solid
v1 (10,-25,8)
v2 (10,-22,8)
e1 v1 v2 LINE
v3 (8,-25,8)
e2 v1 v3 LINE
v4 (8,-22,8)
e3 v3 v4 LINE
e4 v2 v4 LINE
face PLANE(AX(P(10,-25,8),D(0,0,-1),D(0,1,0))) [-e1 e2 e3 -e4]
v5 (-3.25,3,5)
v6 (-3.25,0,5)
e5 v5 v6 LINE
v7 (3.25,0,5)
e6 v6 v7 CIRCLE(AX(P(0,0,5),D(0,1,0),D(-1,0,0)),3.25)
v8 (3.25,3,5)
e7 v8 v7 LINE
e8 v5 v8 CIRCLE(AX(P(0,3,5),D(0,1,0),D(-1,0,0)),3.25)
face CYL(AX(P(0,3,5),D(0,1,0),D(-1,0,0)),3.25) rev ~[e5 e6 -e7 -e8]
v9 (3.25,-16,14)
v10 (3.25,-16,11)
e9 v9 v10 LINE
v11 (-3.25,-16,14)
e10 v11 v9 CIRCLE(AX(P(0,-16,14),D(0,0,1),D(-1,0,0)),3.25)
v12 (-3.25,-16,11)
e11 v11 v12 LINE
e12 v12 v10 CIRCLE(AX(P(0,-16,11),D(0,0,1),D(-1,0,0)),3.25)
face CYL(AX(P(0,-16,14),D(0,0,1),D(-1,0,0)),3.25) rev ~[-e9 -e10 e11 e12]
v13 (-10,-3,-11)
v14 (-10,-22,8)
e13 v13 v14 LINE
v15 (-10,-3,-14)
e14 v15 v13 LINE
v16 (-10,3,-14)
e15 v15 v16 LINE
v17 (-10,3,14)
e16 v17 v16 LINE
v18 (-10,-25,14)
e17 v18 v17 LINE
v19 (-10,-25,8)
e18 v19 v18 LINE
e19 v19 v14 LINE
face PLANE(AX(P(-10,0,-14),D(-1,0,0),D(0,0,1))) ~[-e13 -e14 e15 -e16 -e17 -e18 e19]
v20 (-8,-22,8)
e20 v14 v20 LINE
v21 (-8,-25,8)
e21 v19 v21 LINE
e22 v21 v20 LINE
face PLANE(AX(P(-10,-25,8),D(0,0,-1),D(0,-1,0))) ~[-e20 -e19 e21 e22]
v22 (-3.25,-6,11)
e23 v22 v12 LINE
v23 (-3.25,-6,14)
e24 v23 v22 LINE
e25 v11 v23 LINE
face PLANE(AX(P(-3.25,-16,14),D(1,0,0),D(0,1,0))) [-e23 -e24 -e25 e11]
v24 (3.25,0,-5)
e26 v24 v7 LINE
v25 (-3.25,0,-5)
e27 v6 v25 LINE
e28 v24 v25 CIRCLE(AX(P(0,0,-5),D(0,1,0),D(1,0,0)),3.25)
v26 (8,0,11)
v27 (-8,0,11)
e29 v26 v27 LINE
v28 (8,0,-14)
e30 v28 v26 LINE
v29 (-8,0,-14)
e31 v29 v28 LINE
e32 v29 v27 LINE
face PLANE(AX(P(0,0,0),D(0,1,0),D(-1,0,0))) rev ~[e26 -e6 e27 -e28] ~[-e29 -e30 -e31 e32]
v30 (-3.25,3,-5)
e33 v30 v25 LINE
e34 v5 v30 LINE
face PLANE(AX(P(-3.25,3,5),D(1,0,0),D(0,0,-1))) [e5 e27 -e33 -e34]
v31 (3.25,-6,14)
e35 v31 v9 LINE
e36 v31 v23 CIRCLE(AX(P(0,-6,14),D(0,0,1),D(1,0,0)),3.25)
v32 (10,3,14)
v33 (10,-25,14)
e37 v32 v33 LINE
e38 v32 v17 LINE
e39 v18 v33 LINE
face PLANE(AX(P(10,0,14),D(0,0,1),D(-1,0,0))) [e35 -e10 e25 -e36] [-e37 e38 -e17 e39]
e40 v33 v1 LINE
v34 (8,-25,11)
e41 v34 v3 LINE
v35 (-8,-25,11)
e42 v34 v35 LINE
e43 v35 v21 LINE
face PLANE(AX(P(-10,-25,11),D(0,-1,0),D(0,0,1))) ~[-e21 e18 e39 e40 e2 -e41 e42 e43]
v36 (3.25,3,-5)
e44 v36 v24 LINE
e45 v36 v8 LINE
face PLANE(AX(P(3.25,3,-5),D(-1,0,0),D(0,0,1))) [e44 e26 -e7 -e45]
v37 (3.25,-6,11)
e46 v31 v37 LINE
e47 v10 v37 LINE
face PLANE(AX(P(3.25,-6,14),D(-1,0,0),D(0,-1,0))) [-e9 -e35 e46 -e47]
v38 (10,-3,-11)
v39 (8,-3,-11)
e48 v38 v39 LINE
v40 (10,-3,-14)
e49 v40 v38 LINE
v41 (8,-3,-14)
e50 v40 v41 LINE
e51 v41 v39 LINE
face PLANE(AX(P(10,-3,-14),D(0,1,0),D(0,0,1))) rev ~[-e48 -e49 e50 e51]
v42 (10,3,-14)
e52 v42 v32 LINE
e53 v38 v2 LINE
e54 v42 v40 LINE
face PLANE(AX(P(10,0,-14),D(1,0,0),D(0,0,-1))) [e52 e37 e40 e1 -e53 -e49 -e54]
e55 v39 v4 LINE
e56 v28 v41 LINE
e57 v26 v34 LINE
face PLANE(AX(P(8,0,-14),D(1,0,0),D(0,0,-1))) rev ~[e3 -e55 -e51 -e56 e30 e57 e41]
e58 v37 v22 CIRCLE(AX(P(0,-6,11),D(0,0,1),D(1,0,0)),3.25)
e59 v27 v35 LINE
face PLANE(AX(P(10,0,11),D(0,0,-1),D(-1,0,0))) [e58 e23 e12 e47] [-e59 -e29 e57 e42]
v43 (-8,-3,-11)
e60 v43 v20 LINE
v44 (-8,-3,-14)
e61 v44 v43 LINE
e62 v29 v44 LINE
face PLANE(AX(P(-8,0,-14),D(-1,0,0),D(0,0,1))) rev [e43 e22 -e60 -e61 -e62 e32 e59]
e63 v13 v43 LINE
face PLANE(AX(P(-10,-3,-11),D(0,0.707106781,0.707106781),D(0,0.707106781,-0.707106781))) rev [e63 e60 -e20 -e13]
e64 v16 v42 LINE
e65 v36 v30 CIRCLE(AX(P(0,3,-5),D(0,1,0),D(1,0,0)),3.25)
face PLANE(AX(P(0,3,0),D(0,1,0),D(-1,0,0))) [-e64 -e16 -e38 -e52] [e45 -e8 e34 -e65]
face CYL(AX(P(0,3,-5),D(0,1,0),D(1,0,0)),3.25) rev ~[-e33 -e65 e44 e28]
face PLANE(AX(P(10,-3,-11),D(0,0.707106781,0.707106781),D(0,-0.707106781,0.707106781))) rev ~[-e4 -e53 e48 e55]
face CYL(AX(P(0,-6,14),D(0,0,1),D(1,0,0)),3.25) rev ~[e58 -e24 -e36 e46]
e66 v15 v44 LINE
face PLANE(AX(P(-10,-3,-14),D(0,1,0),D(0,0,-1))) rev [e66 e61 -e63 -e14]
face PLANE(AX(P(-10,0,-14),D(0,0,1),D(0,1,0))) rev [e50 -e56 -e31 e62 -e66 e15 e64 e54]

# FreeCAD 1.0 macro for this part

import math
import FreeCAD as App
import Part
import Sketcher


def add_polygon(sketch, points):
    """Adds a closed chain of lines whose ends are joined by coincident constraints."""
    first, n = sketch.GeometryCount, len(points)
    for a, b in zip(points, points[1:] + points[:1]):
        sketch.addGeometry(Part.LineSegment(App.Vector(*a, 0), App.Vector(*b, 0)), False)
    for i in range(n):
        sketch.addConstraint(Sketcher.Constraint("Coincident", first + i, 2, first + (i + 1) % n, 1))

doc = App.newDocument("Part")
body = doc.addObject("PartDesign::Body", "Body")

# Sketch on XZ plane
sketch1 = body.newObject("Sketcher::SketchObject", "Sketch")
sketch1.AttachmentSupport = (doc.getObject("XZ_Plane"), [""])
sketch1.MapMode = "FlatFace"
add_polygon(sketch1, [(10, -14), (-10, -14), (-10, 14), (10, 14)])  # lines 0-3
sketch1.addConstraint([
    Sketcher.Constraint("Horizontal", 0),
    Sketcher.Constraint("Vertical", 1),
    Sketcher.Constraint("Horizontal", 2),
    Sketcher.Constraint("Vertical", 3),
    Sketcher.Constraint("Symmetric", 0, 2, 2, 2, -1, 1),
    Sketcher.Constraint("DistanceX", 0, 2, 0, 1, 20.0),
    Sketcher.Constraint("DistanceY", 1, 1, 1, 2, 28.0),
])
pad1 = body.newObject("PartDesign::Pad", "Pad")
pad1.Profile = sketch1
pad1.Length = 3
pad1.Reversed = True

# Sketch on XZ plane
sketch2 = body.newObject("Sketcher::SketchObject", "Sketch001")
sketch2.AttachmentSupport = (doc.getObject("XZ_Plane"), [""])
sketch2.MapMode = "FlatFace"
add_polygon(sketch2, [(10, 14), (-10, 14), (-10, 11), (10, 11)])  # lines 0-3
sketch2.addConstraint([
    Sketcher.Constraint("Horizontal", 0),
    Sketcher.Constraint("Vertical", 1),
    Sketcher.Constraint("Horizontal", 2),
    Sketcher.Constraint("Vertical", 3),
    Sketcher.Constraint("DistanceX", 0, 2, 0, 1, 20.0),
    Sketcher.Constraint("DistanceY", 1, 2, 1, 1, 3.0),
    Sketcher.Constraint("DistanceX", 0, 2, -1, 1, 10.0),
    Sketcher.Constraint("DistanceY", -1, 1, 0, 2, 14.0),
])
pad2 = body.newObject("PartDesign::Pad", "Pad001")
pad2.Profile = sketch2
pad2.Length = 25

# Sketch on YZ plane
sketch3 = body.newObject("Sketcher::SketchObject", "Sketch002")
sketch3.AttachmentSupport = (doc.getObject("YZ_Plane"), [""])
sketch3.MapMode = "FlatFace"
sketch3.AttachmentOffset = App.Placement(App.Vector(0, 0, 10), App.Rotation())
add_polygon(sketch3, [(0, -14), (0, 11), (-25, 11), (-25, 8), (-22, 8), (-3, -11), (-3, -14)])  # lines 0-6
sketch3.addConstraint([
    Sketcher.Constraint("Vertical", 0),
    Sketcher.Constraint("Horizontal", 1),
    Sketcher.Constraint("Vertical", 2),
    Sketcher.Constraint("Horizontal", 3),
    Sketcher.Constraint("Vertical", 5),
    Sketcher.Constraint("Horizontal", 6),
    Sketcher.Constraint("PointOnObject", 0, 2, -2),
    Sketcher.Constraint("Equal", 3, 6),
    Sketcher.Constraint("Equal", 1, 0),
    Sketcher.Constraint("Equal", 6, 2),
    Sketcher.Constraint("Equal", 2, 5),
    Sketcher.Constraint("DistanceX", 3, 1, 3, 2, 3.0),
    Sketcher.Constraint("DistanceX", 1, 2, 1, 1, 25.0),
    Sketcher.Constraint("DistanceY", -1, 1, 0, 2, 11.0),
])
pad3 = body.newObject("PartDesign::Pad", "Pad002")
pad3.Profile = sketch3
pad3.Length = 2
pad3.Reversed = True
doc.recompute()

mirrored = body.newObject("PartDesign::Mirrored", "Mirrored")
mirrored.Originals = [pad3]
mirrored.MirrorPlane = (doc.getObject("YZ_Plane"), [""])
body.Tip = mirrored

# Sketch on XY plane
sketch4 = body.newObject("Sketcher::SketchObject", "Sketch003")
sketch4.AttachmentSupport = (doc.getObject("XY_Plane"), [""])
sketch4.MapMode = "FlatFace"
sketch4.AttachmentOffset = App.Placement(App.Vector(0, 0, 14), App.Rotation())
sketch4.addGeometry([
    Part.ArcOfCircle(Part.Circle(App.Vector(0, -6, 0), App.Vector(0, 0, 1), 3.25), math.radians(0), math.radians(180)),
    Part.LineSegment(App.Vector(-3.25, -6, 0), App.Vector(-3.25, -16, 0)),
    Part.ArcOfCircle(Part.Circle(App.Vector(0, -16, 0), App.Vector(0, 0, 1), 3.25), math.radians(180), math.radians(360)),
    Part.LineSegment(App.Vector(3.25, -16, 0), App.Vector(3.25, -6, 0)),
], False)
sketch4.addConstraint([
    Sketcher.Constraint("Tangent", 0, 2, 1, 1),
    Sketcher.Constraint("Tangent", 1, 2, 2, 1),
    Sketcher.Constraint("Tangent", 2, 2, 3, 1),
    Sketcher.Constraint("Tangent", 3, 2, 0, 1),
    Sketcher.Constraint("Vertical", 1),
    Sketcher.Constraint("Vertical", 3),
    Sketcher.Constraint("PointOnObject", 0, 3, -2),
    Sketcher.Constraint("DistanceY", 1, 2, 1, 1, 10.0),
    Sketcher.Constraint("Radius", 0, 3.25),
    Sketcher.Constraint("DistanceY", 0, 3, -1, 1, 6.0),
])
pocket1 = body.newObject("PartDesign::Pocket", "Pocket")
pocket1.Profile = sketch4
pocket1.Type = "ThroughAll"

# Sketch on XZ plane
sketch5 = body.newObject("Sketcher::SketchObject", "Sketch004")
sketch5.AttachmentSupport = (doc.getObject("XZ_Plane"), [""])
sketch5.MapMode = "FlatFace"
sketch5.AttachmentOffset = App.Placement(App.Vector(0, 0, -3), App.Rotation())
sketch5.addGeometry([
    Part.ArcOfCircle(Part.Circle(App.Vector(0, 5, 0), App.Vector(0, 0, 1), 3.25), math.radians(0), math.radians(180)),
    Part.LineSegment(App.Vector(3.25, 5, 0), App.Vector(3.25, -5, 0)),
    Part.ArcOfCircle(Part.Circle(App.Vector(0, -5, 0), App.Vector(0, 0, 1), 3.25), math.radians(180), math.radians(360)),
    Part.LineSegment(App.Vector(-3.25, -5, 0), App.Vector(-3.25, 5, 0)),
], False)
sketch5.addConstraint([
    Sketcher.Constraint("Tangent", 0, 1, 1, 1),
    Sketcher.Constraint("Tangent", 1, 2, 2, 2),
    Sketcher.Constraint("Tangent", 2, 1, 3, 1),
    Sketcher.Constraint("Tangent", 3, 2, 0, 2),
    Sketcher.Constraint("Vertical", 1),
    Sketcher.Constraint("Vertical", 3),
    Sketcher.Constraint("Symmetric", 0, 3, 2, 3, -1, 1),
    Sketcher.Constraint("DistanceY", 1, 2, 1, 1, 10.0),
    Sketcher.Constraint("Radius", 0, 3.25),
])
pocket2 = body.newObject("PartDesign::Pocket", "Pocket001")
pocket2.Profile = sketch5
pocket2.Type = "ThroughAll"
pocket2.Reversed = True

doc.recompute()
